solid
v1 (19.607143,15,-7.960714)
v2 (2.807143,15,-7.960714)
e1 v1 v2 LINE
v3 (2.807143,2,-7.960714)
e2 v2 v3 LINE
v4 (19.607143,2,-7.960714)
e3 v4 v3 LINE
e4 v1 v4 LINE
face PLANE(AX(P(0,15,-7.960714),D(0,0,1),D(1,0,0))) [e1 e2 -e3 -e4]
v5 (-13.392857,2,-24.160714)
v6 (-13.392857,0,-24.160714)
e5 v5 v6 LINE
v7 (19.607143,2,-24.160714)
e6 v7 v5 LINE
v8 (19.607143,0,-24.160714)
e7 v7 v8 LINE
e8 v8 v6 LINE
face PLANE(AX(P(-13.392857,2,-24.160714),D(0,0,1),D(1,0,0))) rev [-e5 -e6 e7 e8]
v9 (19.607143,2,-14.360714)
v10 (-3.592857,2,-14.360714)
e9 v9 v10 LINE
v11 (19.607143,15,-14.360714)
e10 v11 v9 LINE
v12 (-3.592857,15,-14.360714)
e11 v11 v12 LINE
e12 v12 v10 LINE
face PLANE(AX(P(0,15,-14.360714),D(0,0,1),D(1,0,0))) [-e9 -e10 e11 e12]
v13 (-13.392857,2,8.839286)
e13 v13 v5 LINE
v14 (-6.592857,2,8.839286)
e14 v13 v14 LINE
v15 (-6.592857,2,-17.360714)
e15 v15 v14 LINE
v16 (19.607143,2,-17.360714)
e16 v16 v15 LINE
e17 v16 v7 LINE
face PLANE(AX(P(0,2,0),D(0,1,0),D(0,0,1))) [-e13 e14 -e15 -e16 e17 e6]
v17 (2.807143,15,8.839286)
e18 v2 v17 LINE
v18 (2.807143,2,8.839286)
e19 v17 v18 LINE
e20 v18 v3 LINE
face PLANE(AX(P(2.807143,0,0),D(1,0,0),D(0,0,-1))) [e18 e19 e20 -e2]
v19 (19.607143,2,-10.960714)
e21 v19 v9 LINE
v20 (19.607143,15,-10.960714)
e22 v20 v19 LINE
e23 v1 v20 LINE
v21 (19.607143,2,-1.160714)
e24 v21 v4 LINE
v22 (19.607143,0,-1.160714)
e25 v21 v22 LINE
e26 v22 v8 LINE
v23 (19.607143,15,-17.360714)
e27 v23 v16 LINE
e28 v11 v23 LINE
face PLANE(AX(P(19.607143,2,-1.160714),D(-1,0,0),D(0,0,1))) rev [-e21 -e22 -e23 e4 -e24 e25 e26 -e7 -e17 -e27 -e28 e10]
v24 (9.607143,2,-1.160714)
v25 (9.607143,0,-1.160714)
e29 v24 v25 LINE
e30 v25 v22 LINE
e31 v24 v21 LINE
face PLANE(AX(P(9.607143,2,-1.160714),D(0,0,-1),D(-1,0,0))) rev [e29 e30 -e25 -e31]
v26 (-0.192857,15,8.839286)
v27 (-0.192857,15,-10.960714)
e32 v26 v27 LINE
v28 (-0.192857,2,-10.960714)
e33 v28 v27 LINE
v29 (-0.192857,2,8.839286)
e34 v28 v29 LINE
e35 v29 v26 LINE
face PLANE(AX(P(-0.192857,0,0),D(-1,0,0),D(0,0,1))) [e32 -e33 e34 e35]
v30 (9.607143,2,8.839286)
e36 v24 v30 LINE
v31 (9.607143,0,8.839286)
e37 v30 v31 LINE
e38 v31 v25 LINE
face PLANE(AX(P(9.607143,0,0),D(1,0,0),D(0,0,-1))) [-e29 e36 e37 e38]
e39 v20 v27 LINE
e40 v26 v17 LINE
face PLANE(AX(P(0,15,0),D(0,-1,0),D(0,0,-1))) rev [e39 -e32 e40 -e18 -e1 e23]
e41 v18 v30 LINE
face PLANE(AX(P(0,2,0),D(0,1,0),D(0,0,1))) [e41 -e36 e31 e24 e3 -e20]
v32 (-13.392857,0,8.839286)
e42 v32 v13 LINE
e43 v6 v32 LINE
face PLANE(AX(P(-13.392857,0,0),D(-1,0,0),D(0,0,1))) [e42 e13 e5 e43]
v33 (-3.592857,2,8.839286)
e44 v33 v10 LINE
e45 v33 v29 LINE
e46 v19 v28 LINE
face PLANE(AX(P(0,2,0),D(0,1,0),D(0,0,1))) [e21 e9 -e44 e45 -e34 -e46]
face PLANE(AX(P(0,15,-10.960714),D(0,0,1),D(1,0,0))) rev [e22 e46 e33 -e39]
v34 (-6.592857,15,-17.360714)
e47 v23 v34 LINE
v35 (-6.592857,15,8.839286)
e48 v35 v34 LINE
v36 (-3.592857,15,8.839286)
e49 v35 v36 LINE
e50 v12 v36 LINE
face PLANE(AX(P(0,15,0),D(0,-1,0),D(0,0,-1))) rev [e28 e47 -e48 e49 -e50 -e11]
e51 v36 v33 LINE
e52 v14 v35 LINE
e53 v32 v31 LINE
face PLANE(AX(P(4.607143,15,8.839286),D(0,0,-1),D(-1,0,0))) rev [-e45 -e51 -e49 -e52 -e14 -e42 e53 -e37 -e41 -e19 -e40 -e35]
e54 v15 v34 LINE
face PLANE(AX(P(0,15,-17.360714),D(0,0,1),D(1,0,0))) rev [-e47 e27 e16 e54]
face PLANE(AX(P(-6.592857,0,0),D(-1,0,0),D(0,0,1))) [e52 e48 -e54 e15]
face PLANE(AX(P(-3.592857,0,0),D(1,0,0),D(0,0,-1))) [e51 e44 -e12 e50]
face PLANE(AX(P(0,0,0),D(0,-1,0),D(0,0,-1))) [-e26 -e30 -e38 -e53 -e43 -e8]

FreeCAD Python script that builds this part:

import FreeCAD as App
import Part
import Sketcher

doc = App.newDocument("Part")
params = doc.addObject("Spreadsheet::Sheet", "Params")
for row, (alias, value) in enumerate([
    ("sketch1_width", "13 mm"),
    ("sketch1_height", "20 mm"),
    ("pad1_length", "15 mm"),
    ("sketch2_width", "2 mm"),
    ("sketch2_width2", "3 mm"),
    ("sketch2_height", "20 mm"),
    ("pocket1_length", "13 mm"),
    ("sketch3_width", "2 mm"),
    ("sketch3_height", "20 mm"),
    ("pad2_length", "5 mm"),
    ("sketch4_width", "2 mm"),
    ("sketch4_height", "20 mm"),
    ("pad3_length", "5 mm"),
    ("sketch5_width", "13 mm"),
    ("sketch5_height", "20 mm"),
    ("pocket2_length", "0.2 mm"),
    ("sketch6_width", "13 mm"),
    ("sketch6_height", "20 mm"),
    ("pocket3_length", "0.2 mm"),
    ("sketch7_width", "13 mm"),
    ("sketch7_height", "20 mm"),
    ("pad4_length", "0.2 mm"),
    ("sketch8_width", "13 mm"),
    ("sketch8_height", "20 mm"),
    ("pad5_length", "0.2 mm"),
    ("sketch9_width", "3 mm"),
    ("sketch9_width2", "23 mm"),
    ("sketch9_height", "13 mm"),
    ("sketch9_height2", "2 mm"),
    ("sketch9_width3", "3.4 mm"),
    ("pocket4_length", "10 mm"),
    ("sketch10_width", "33 mm"),
    ("sketch10_height", "23 mm"),
    ("pad6_length", "2 mm"),
    ("sketch11_width", "3 mm"),
    ("sketch11_height", "23 mm"),
    ("pad7_length", "13 mm"),
    ("sketch12_width", "33 mm"),
    ("sketch12_height", "3 mm"),
    ("pad8_length", "13 mm"),
    ("sketch13_height", "13 mm"),
    ("sketch13_width", "3.4 mm"),
    ("pocket5_length", "10 mm"),
    ("sketch14_height", "13 mm"),
    ("sketch14_width", "6.8 mm"),
    ("pocket6_length", "10 mm"),
    ("sketch15_width", "13 mm"),
    ("sketch15_height", "6.8 mm"),
    ("pocket7_length", "10 mm"),
    ("sketch16_width", "13 mm"),
    ("sketch16_height", "3.4 mm"),
    ("pocket8_length", "5 mm"),
], start=1):
    params.set(f"A{row}", alias)
    params.set(f"B{row}", "=" + value)
    params.setAlias(f"B{row}", alias)

body = doc.addObject("PartDesign::Body", "Body")

sketch1 = doc.addObject("Sketcher::SketchObject", "Sketch")
body.addObject(sketch1)
sketch1.AttachmentSupport = (doc.XZ_Plane, [""])
sketch1.MapMode = "FlatFace"
sketch1.addGeometry([
    Part.LineSegment(App.Vector(-8, -11, 0), App.Vector(-8, 9, 0)),
    Part.LineSegment(App.Vector(-8, 9, 0), App.Vector(5, 9, 0)),
    Part.LineSegment(App.Vector(5, 9, 0), App.Vector(5, -11, 0)),
    Part.LineSegment(App.Vector(5, -11, 0), App.Vector(-8, -11, 0)),
], False)
sketch1.addConstraint([
    Sketcher.Constraint("Coincident", 0, 2, 1, 1),
    Sketcher.Constraint("Coincident", 1, 2, 2, 1),
    Sketcher.Constraint("Coincident", 2, 2, 3, 1),
    Sketcher.Constraint("Coincident", 3, 2, 0, 1),
    Sketcher.Constraint("Vertical", 0),
    Sketcher.Constraint("Horizontal", 1),
    Sketcher.Constraint("Vertical", 2),
    Sketcher.Constraint("Horizontal", 3),
    Sketcher.Constraint("DistanceX", 1, 1, 1, 2, 13.0),
    Sketcher.Constraint("DistanceY", 0, 1, 0, 2, 20.0),
    Sketcher.Constraint("DistanceX", 0, 2, -1, 1, 8.392857),
    Sketcher.Constraint("DistanceY", -1, 1, 0, 2, 8.839286),
])
sketch1.setExpression("Constraints[8]", "Params.sketch1_width")
sketch1.setExpression("Constraints[9]", "Params.sketch1_height")
pad1 = doc.addObject("PartDesign::Pad", "Pad")
body.addObject(pad1)
pad1.Profile = sketch1
pad1.setExpression("Length", "Params.pad1_length")
pad1.Reversed = True

sketch2 = doc.addObject("Sketcher::SketchObject", "Sketch001")
body.addObject(sketch2)
sketch2.AttachmentSupport = (doc.XZ_Plane, [""])
sketch2.MapMode = "FlatFace"
sketch2.AttachmentOffset = App.Placement(App.Vector(0, 0, -15), App.Rotation())
sketch2.addGeometry([
    Part.LineSegment(App.Vector(-8.4, -11.2, 0), App.Vector(-8.4, 8.8, 0)),
    Part.LineSegment(App.Vector(-8.4, 8.8, 0), App.Vector(-6.4, 8.8, 0)),
    Part.LineSegment(App.Vector(-6.4, 8.8, 0), App.Vector(-6.4, -11.2, 0)),
    Part.LineSegment(App.Vector(-6.4, -11.2, 0), App.Vector(-8.4, -11.2, 0)),
    Part.LineSegment(App.Vector(-3.4, -11.2, 0), App.Vector(-3.4, 8.8, 0)),
    Part.LineSegment(App.Vector(-3.4, 8.8, 0), App.Vector(-0.4, 8.8, 0)),
    Part.LineSegment(App.Vector(-0.4, 8.8, 0), App.Vector(-0.4, -11.2, 0)),
    Part.LineSegment(App.Vector(-0.4, -11.2, 0), App.Vector(-3.4, -11.2, 0)),
    Part.LineSegment(App.Vector(2.6, -11.2, 0), App.Vector(2.6, 8.8, 0)),
    Part.LineSegment(App.Vector(2.6, 8.8, 0), App.Vector(4.6, 8.8, 0)),
    Part.LineSegment(App.Vector(4.6, 8.8, 0), App.Vector(4.6, -11.2, 0)),
    Part.LineSegment(App.Vector(4.6, -11.2, 0), App.Vector(2.6, -11.2, 0)),
], False)
sketch2.addConstraint([
    Sketcher.Constraint("Coincident", 0, 2, 1, 1),
    Sketcher.Constraint("Coincident", 1, 2, 2, 1),
    Sketcher.Constraint("Coincident", 2, 2, 3, 1),
    Sketcher.Constraint("Coincident", 3, 2, 0, 1),
    Sketcher.Constraint("Coincident", 4, 2, 5, 1),
    Sketcher.Constraint("Coincident", 5, 2, 6, 1),
    Sketcher.Constraint("Coincident", 6, 2, 7, 1),
    Sketcher.Constraint("Coincident", 7, 2, 4, 1),
    Sketcher.Constraint("Coincident", 8, 2, 9, 1),
    Sketcher.Constraint("Coincident", 9, 2, 10, 1),
    Sketcher.Constraint("Coincident", 10, 2, 11, 1),
    Sketcher.Constraint("Coincident", 11, 2, 8, 1),
    Sketcher.Constraint("Vertical", 0),
    Sketcher.Constraint("Horizontal", 1),
    Sketcher.Constraint("Vertical", 2),
    Sketcher.Constraint("Horizontal", 3),
    Sketcher.Constraint("Vertical", 4),
    Sketcher.Constraint("Horizontal", 5),
    Sketcher.Constraint("Vertical", 6),
    Sketcher.Constraint("Horizontal", 7),
    Sketcher.Constraint("Vertical", 8),
    Sketcher.Constraint("Horizontal", 9),
    Sketcher.Constraint("Vertical", 10),
    Sketcher.Constraint("Horizontal", 11),
    Sketcher.Constraint("Horizontal", 1, 2, 4, 2),
    Sketcher.Constraint("Horizontal", 3, 2, 6, 2),
    Sketcher.Constraint("Horizontal", 5, 2, 8, 2),
    Sketcher.Constraint("Horizontal", 7, 2, 10, 2),
    Sketcher.Constraint("Equal", 3, 9),
    Sketcher.Constraint("DistanceX", 1, 1, 1, 2, 2.0),
    Sketcher.Constraint("DistanceX", 5, 1, 5, 2, 3.0),
    Sketcher.Constraint("DistanceY", 0, 1, 0, 2, 20.0),
    Sketcher.Constraint("DistanceX", 1, 2, 4, 2, 3.0),
    Sketcher.Constraint("DistanceX", 5, 2, 8, 2, 3.0),
    Sketcher.Constraint("DistanceX", 0, 2, -1, 1, 8.392857),
    Sketcher.Constraint("DistanceY", -1, 1, 0, 2, 8.839286),
])
sketch2.setExpression("Constraints[29]", "Params.sketch2_width")
sketch2.setExpression("Constraints[30]", "Params.sketch2_width2")
sketch2.setExpression("Constraints[31]", "Params.sketch2_height")
pocket1 = doc.addObject("PartDesign::Pocket", "Pocket")
body.addObject(pocket1)
pocket1.Profile = sketch2
pocket1.setExpression("Length", "Params.pocket1_length")
pocket1.Reversed = True

sketch3 = doc.addObject("Sketcher::SketchObject", "Sketch002")
body.addObject(sketch3)
sketch3.AttachmentSupport = (doc.YZ_Plane, [""])
sketch3.MapMode = "FlatFace"
sketch3.AttachmentOffset = App.Placement(App.Vector(0, 0, -8.392857), App.Rotation())
sketch3.addGeometry([
    Part.LineSegment(App.Vector(2, -11.2, 0), App.Vector(0, -11.2, 0)),
    Part.LineSegment(App.Vector(0, -11.2, 0), App.Vector(0, 8.8, 0)),
    Part.LineSegment(App.Vector(0, 8.8, 0), App.Vector(2, 8.8, 0)),
    Part.LineSegment(App.Vector(2, 8.8, 0), App.Vector(2, -11.2, 0)),
], False)
sketch3.addConstraint([
    Sketcher.Constraint("Coincident", 0, 2, 1, 1),
    Sketcher.Constraint("Coincident", 1, 2, 2, 1),
    Sketcher.Constraint("Coincident", 2, 2, 3, 1),
    Sketcher.Constraint("Coincident", 3, 2, 0, 1),
    Sketcher.Constraint("Horizontal", 0),
    Sketcher.Constraint("Vertical", 1),
    Sketcher.Constraint("Horizontal", 2),
    Sketcher.Constraint("Vertical", 3),
    Sketcher.Constraint("PointOnObject", 0, 2, -2),
    Sketcher.Constraint("DistanceX", 0, 2, 0, 1, 2.0),
    Sketcher.Constraint("DistanceY", 1, 1, 1, 2, 20.0),
    Sketcher.Constraint("DistanceY", 0, 2, -1, 1, 11.160714),
])
sketch3.setExpression("Constraints[9]", "Params.sketch3_width")
sketch3.setExpression("Constraints[10]", "Params.sketch3_height")
pad2 = doc.addObject("PartDesign::Pad", "Pad001")
body.addObject(pad2)
pad2.Profile = sketch3
pad2.setExpression("Length", "Params.pad2_length")
pad2.Reversed = True

sketch4 = doc.addObject("Sketcher::SketchObject", "Sketch003")
body.addObject(sketch4)
sketch4.AttachmentSupport = (doc.YZ_Plane, [""])
sketch4.MapMode = "FlatFace"
sketch4.AttachmentOffset = App.Placement(App.Vector(0, 0, 4.607143), App.Rotation())
sketch4.addGeometry([
    Part.LineSegment(App.Vector(2, 8.8, 0), App.Vector(0, 8.8, 0)),
    Part.LineSegment(App.Vector(0, 8.8, 0), App.Vector(0, -11.2, 0)),
    Part.LineSegment(App.Vector(0, -11.2, 0), App.Vector(2, -11.2, 0)),
    Part.LineSegment(App.Vector(2, -11.2, 0), App.Vector(2, 8.8, 0)),
], False)
sketch4.addConstraint([
    Sketcher.Constraint("Coincident", 0, 2, 1, 1),
    Sketcher.Constraint("Coincident", 1, 2, 2, 1),
    Sketcher.Constraint("Coincident", 2, 2, 3, 1),
    Sketcher.Constraint("Coincident", 3, 2, 0, 1),
    Sketcher.Constraint("Horizontal", 0),
    Sketcher.Constraint("Vertical", 1),
    Sketcher.Constraint("Horizontal", 2),
    Sketcher.Constraint("Vertical", 3),
    Sketcher.Constraint("PointOnObject", 0, 2, -2),
    Sketcher.Constraint("DistanceX", 0, 2, 0, 1, 2.0),
    Sketcher.Constraint("DistanceY", 1, 2, 1, 1, 20.0),
    Sketcher.Constraint("DistanceY", -1, 1, 0, 2, 8.839286),
])
sketch4.setExpression("Constraints[9]", "Params.sketch4_width")
sketch4.setExpression("Constraints[10]", "Params.sketch4_height")
pad3 = doc.addObject("PartDesign::Pad", "Pad002")
body.addObject(pad3)
pad3.Profile = sketch4
pad3.setExpression("Length", "Params.pad3_length")

sketch5 = doc.addObject("Sketcher::SketchObject", "Sketch004")
body.addObject(sketch5)
sketch5.AttachmentSupport = (doc.YZ_Plane, [""])
sketch5.MapMode = "FlatFace"
sketch5.AttachmentOffset = App.Placement(App.Vector(0, 0, -0.392857), App.Rotation())
sketch5.addGeometry([
    Part.LineSegment(App.Vector(15, -11, 0), App.Vector(2, -11, 0)),
    Part.LineSegment(App.Vector(2, -11, 0), App.Vector(2, 9, 0)),
    Part.LineSegment(App.Vector(2, 9, 0), App.Vector(15, 9, 0)),
    Part.LineSegment(App.Vector(15, 9, 0), App.Vector(15, -11, 0)),
], False)
sketch5.addConstraint([
    Sketcher.Constraint("Coincident", 0, 2, 1, 1),
    Sketcher.Constraint("Coincident", 1, 2, 2, 1),
    Sketcher.Constraint("Coincident", 2, 2, 3, 1),
    Sketcher.Constraint("Coincident", 3, 2, 0, 1),
    Sketcher.Constraint("Horizontal", 0),
    Sketcher.Constraint("Vertical", 1),
    Sketcher.Constraint("Horizontal", 2),
    Sketcher.Constraint("Vertical", 3),
    Sketcher.Constraint("DistanceX", 0, 2, 0, 1, 13.0),
    Sketcher.Constraint("DistanceY", 1, 1, 1, 2, 20.0),
    Sketcher.Constraint("DistanceX", -1, 1, 0, 2, 2.0),
    Sketcher.Constraint("DistanceY", 0, 2, -1, 1, 11.160714),
])
sketch5.setExpression("Constraints[8]", "Params.sketch5_width")
sketch5.setExpression("Constraints[9]", "Params.sketch5_height")
pocket2 = doc.addObject("PartDesign::Pocket", "Pocket001")
body.addObject(pocket2)
pocket2.Profile = sketch5
pocket2.setExpression("Length", "Params.pocket2_length")
pocket2.Reversed = True

sketch6 = doc.addObject("Sketcher::SketchObject", "Sketch005")
body.addObject(sketch6)
sketch6.AttachmentSupport = (doc.YZ_Plane, [""])
sketch6.MapMode = "FlatFace"
sketch6.AttachmentOffset = App.Placement(App.Vector(0, 0, -3.392857), App.Rotation())
sketch6.addGeometry([
    Part.LineSegment(App.Vector(15, 9, 0), App.Vector(2, 9, 0)),
    Part.LineSegment(App.Vector(2, 9, 0), App.Vector(2, -11, 0)),
    Part.LineSegment(App.Vector(2, -11, 0), App.Vector(15, -11, 0)),
    Part.LineSegment(App.Vector(15, -11, 0), App.Vector(15, 9, 0)),
], False)
sketch6.addConstraint([
    Sketcher.Constraint("Coincident", 0, 2, 1, 1),
    Sketcher.Constraint("Coincident", 1, 2, 2, 1),
    Sketcher.Constraint("Coincident", 2, 2, 3, 1),
    Sketcher.Constraint("Coincident", 3, 2, 0, 1),
    Sketcher.Constraint("Horizontal", 0),
    Sketcher.Constraint("Vertical", 1),
    Sketcher.Constraint("Horizontal", 2),
    Sketcher.Constraint("Vertical", 3),
    Sketcher.Constraint("DistanceX", 0, 2, 0, 1, 13.0),
    Sketcher.Constraint("DistanceY", 1, 2, 1, 1, 20.0),
    Sketcher.Constraint("DistanceX", -1, 1, 0, 2, 2.0),
    Sketcher.Constraint("DistanceY", -1, 1, 0, 2, 8.839286),
])
sketch6.setExpression("Constraints[8]", "Params.sketch6_width")
sketch6.setExpression("Constraints[9]", "Params.sketch6_height")
pocket3 = doc.addObject("PartDesign::Pocket", "Pocket002")
body.addObject(pocket3)
pocket3.Profile = sketch6
pocket3.setExpression("Length", "Params.pocket3_length")

sketch7 = doc.addObject("Sketcher::SketchObject", "Sketch006")
body.addObject(sketch7)
sketch7.AttachmentSupport = (doc.YZ_Plane, [""])
sketch7.MapMode = "FlatFace"
sketch7.AttachmentOffset = App.Placement(App.Vector(0, 0, 2.607143), App.Rotation())
sketch7.addGeometry([
    Part.LineSegment(App.Vector(15, 9, 0), App.Vector(2, 9, 0)),
    Part.LineSegment(App.Vector(2, 9, 0), App.Vector(2, -11, 0)),
    Part.LineSegment(App.Vector(2, -11, 0), App.Vector(15, -11, 0)),
    Part.LineSegment(App.Vector(15, -11, 0), App.Vector(15, 9, 0)),
], False)
sketch7.addConstraint([
    Sketcher.Constraint("Coincident", 0, 2, 1, 1),
    Sketcher.Constraint("Coincident", 1, 2, 2, 1),
    Sketcher.Constraint("Coincident", 2, 2, 3, 1),
    Sketcher.Constraint("Coincident", 3, 2, 0, 1),
    Sketcher.Constraint("Horizontal", 0),
    Sketcher.Constraint("Vertical", 1),
    Sketcher.Constraint("Horizontal", 2),
    Sketcher.Constraint("Vertical", 3),
    Sketcher.Constraint("DistanceX", 0, 2, 0, 1, 13.0),
    Sketcher.Constraint("DistanceY", 1, 2, 1, 1, 20.0),
    Sketcher.Constraint("DistanceX", -1, 1, 0, 2, 2.0),
    Sketcher.Constraint("DistanceY", -1, 1, 0, 2, 8.839286),
])
sketch7.setExpression("Constraints[8]", "Params.sketch7_width")
sketch7.setExpression("Constraints[9]", "Params.sketch7_height")
pad4 = doc.addObject("PartDesign::Pad", "Pad003")
body.addObject(pad4)
pad4.Profile = sketch7
pad4.setExpression("Length", "Params.pad4_length")

sketch8 = doc.addObject("Sketcher::SketchObject", "Sketch007")
body.addObject(sketch8)
sketch8.AttachmentSupport = (doc.YZ_Plane, [""])
sketch8.MapMode = "FlatFace"
sketch8.AttachmentOffset = App.Placement(App.Vector(0, 0, -6.392857), App.Rotation())
sketch8.addGeometry([
    Part.LineSegment(App.Vector(15, -11, 0), App.Vector(2, -11, 0)),
    Part.LineSegment(App.Vector(2, -11, 0), App.Vector(2, 9, 0)),
    Part.LineSegment(App.Vector(2, 9, 0), App.Vector(15, 9, 0)),
    Part.LineSegment(App.Vector(15, 9, 0), App.Vector(15, -11, 0)),
], False)
sketch8.addConstraint([
    Sketcher.Constraint("Coincident", 0, 2, 1, 1),
    Sketcher.Constraint("Coincident", 1, 2, 2, 1),
    Sketcher.Constraint("Coincident", 2, 2, 3, 1),
    Sketcher.Constraint("Coincident", 3, 2, 0, 1),
    Sketcher.Constraint("Horizontal", 0),
    Sketcher.Constraint("Vertical", 1),
    Sketcher.Constraint("Horizontal", 2),
    Sketcher.Constraint("Vertical", 3),
    Sketcher.Constraint("DistanceX", 0, 2, 0, 1, 13.0),
    Sketcher.Constraint("DistanceY", 1, 1, 1, 2, 20.0),
    Sketcher.Constraint("DistanceX", -1, 1, 0, 2, 2.0),
    Sketcher.Constraint("DistanceY", 0, 2, -1, 1, 11.160714),
])
sketch8.setExpression("Constraints[8]", "Params.sketch8_width")
sketch8.setExpression("Constraints[9]", "Params.sketch8_height")
pad5 = doc.addObject("PartDesign::Pad", "Pad004")
body.addObject(pad5)
pad5.Profile = sketch8
pad5.setExpression("Length", "Params.pad5_length")
pad5.Reversed = True

sketch9 = doc.addObject("Sketcher::SketchObject", "Sketch008")
body.addObject(sketch9)
sketch9.AttachmentSupport = (doc.XY_Plane, [""])
sketch9.MapMode = "FlatFace"
sketch9.AttachmentOffset = App.Placement(App.Vector(0, 0, -11.160714), App.Rotation())
sketch9.addGeometry([
    Part.LineSegment(App.Vector(-6.6, 2, 0), App.Vector(-6.6, 15, 0)),
    Part.LineSegment(App.Vector(-6.6, 15, 0), App.Vector(-3.6, 15, 0)),
    Part.LineSegment(App.Vector(-3.6, 15, 0), App.Vector(-3.6, 2, 0)),
    Part.LineSegment(App.Vector(-3.6, 2, 0), App.Vector(-0.2, 2, 0)),
    Part.LineSegment(App.Vector(-0.2, 2, 0), App.Vector(-0.2, 15, 0)),
    Part.LineSegment(App.Vector(-0.2, 15, 0), App.Vector(2.8, 15, 0)),
    Part.LineSegment(App.Vector(2.8, 15, 0), App.Vector(2.8, 2, 0)),
    Part.LineSegment(App.Vector(2.8, 2, 0), App.Vector(9.6, 2, 0)),
    Part.LineSegment(App.Vector(9.6, 2, 0), App.Vector(9.6, 0, 0)),
    Part.LineSegment(App.Vector(9.6, 0, 0), App.Vector(-13.4, 0, 0)),
    Part.LineSegment(App.Vector(-13.4, 0, 0), App.Vector(-13.4, 2, 0)),
    Part.LineSegment(App.Vector(-13.4, 2, 0), App.Vector(-6.6, 2, 0)),
], False)
sketch9.addConstraint([
    Sketcher.Constraint("Coincident", 0, 2, 1, 1),
    Sketcher.Constraint("Coincident", 1, 2, 2, 1),
    Sketcher.Constraint("Coincident", 2, 2, 3, 1),
    Sketcher.Constraint("Coincident", 3, 2, 4, 1),
    Sketcher.Constraint("Coincident", 4, 2, 5, 1),
    Sketcher.Constraint("Coincident", 5, 2, 6, 1),
    Sketcher.Constraint("Coincident", 6, 2, 7, 1),
    Sketcher.Constraint("Coincident", 7, 2, 8, 1),
    Sketcher.Constraint("Coincident", 8, 2, 9, 1),
    Sketcher.Constraint("Coincident", 9, 2, 10, 1),
    Sketcher.Constraint("Coincident", 10, 2, 11, 1),
    Sketcher.Constraint("Coincident", 11, 2, 0, 1),
    Sketcher.Constraint("Vertical", 0),
    Sketcher.Constraint("Horizontal", 1),
    Sketcher.Constraint("Vertical", 2),
    Sketcher.Constraint("Horizontal", 3),
    Sketcher.Constraint("Vertical", 4),
    Sketcher.Constraint("Horizontal", 5),
    Sketcher.Constraint("Vertical", 6),
    Sketcher.Constraint("Horizontal", 7),
    Sketcher.Constraint("Vertical", 8),
    Sketcher.Constraint("Horizontal", 9),
    Sketcher.Constraint("Vertical", 10),
    Sketcher.Constraint("Horizontal", 11),
    Sketcher.Constraint("PointOnObject", 8, 2, -1),
    Sketcher.Constraint("Horizontal", 1, 2, 4, 2),
    Sketcher.Constraint("Horizontal", 3, 2, 6, 2),
    Sketcher.Constraint("Horizontal", 7, 2, 10, 2),
    Sketcher.Constraint("Equal", 1, 5),
    Sketcher.Constraint("Equal", 7, 11),
    Sketcher.Constraint("DistanceX", 1, 1, 1, 2, 3.0),
    Sketcher.Constraint("DistanceX", 9, 2, 9, 1, 23.0),
    Sketcher.Constraint("DistanceY", 0, 1, 0, 2, 13.0),
    Sketcher.Constraint("DistanceY", 8, 2, 8, 1, 2.0),
    Sketcher.Constraint("DistanceX", 3, 1, 3, 2, 3.4),
    Sketcher.Constraint("DistanceX", 0, 2, -1, 1, 6.592857),
])
sketch9.setExpression("Constraints[30]", "Params.sketch9_width")
sketch9.setExpression("Constraints[31]", "Params.sketch9_width2")
sketch9.setExpression("Constraints[32]", "Params.sketch9_height")
sketch9.setExpression("Constraints[33]", "Params.sketch9_height2")
sketch9.setExpression("Constraints[34]", "Params.sketch9_width3")
pocket4 = doc.addObject("PartDesign::Pocket", "Pocket003")
body.addObject(pocket4)
pocket4.Profile = sketch9
pocket4.setExpression("Length", "Params.pocket4_length")
pocket4.Reversed = True

sketch10 = doc.addObject("Sketcher::SketchObject", "Sketch009")
body.addObject(sketch10)
sketch10.AttachmentSupport = (doc.XZ_Plane, [""])
sketch10.MapMode = "FlatFace"
sketch10.addGeometry([
    Part.LineSegment(App.Vector(20, -1, 0), App.Vector(20, -24, 0)),
    Part.LineSegment(App.Vector(20, -24, 0), App.Vector(-13, -24, 0)),
    Part.LineSegment(App.Vector(-13, -24, 0), App.Vector(-13, -1, 0)),
    Part.LineSegment(App.Vector(-13, -1, 0), App.Vector(20, -1, 0)),
], False)
sketch10.addConstraint([
    Sketcher.Constraint("Coincident", 0, 2, 1, 1),
    Sketcher.Constraint("Coincident", 1, 2, 2, 1),
    Sketcher.Constraint("Coincident", 2, 2, 3, 1),
    Sketcher.Constraint("Coincident", 3, 2, 0, 1),
    Sketcher.Constraint("Vertical", 0),
    Sketcher.Constraint("Horizontal", 1),
    Sketcher.Constraint("Vertical", 2),
    Sketcher.Constraint("Horizontal", 3),
    Sketcher.Constraint("DistanceX", 1, 2, 1, 1, 33.0),
    Sketcher.Constraint("DistanceY", 0, 2, 0, 1, 23.0),
    Sketcher.Constraint("DistanceX", -1, 1, 0, 2, 19.607143),
    Sketcher.Constraint("DistanceY", 0, 2, -1, 1, 24.160714),
])
sketch10.setExpression("Constraints[8]", "Params.sketch10_width")
sketch10.setExpression("Constraints[9]", "Params.sketch10_height")
pad6 = doc.addObject("PartDesign::Pad", "Pad005")
body.addObject(pad6)
pad6.Profile = sketch10
pad6.setExpression("Length", "Params.pad6_length")
pad6.Reversed = True

sketch11 = doc.addObject("Sketcher::SketchObject", "Sketch010")
body.addObject(sketch11)
sketch11.AttachmentSupport = (doc.XZ_Plane, [""])
sketch11.MapMode = "FlatFace"
sketch11.AttachmentOffset = App.Placement(App.Vector(0, 0, -2), App.Rotation())
sketch11.addGeometry([
    Part.LineSegment(App.Vector(-0.2, -1.2, 0), App.Vector(2.8, -1.2, 0)),
    Part.LineSegment(App.Vector(2.8, -1.2, 0), App.Vector(2.8, -24.2, 0)),
    Part.LineSegment(App.Vector(2.8, -24.2, 0), App.Vector(-0.2, -24.2, 0)),
    Part.LineSegment(App.Vector(-0.2, -24.2, 0), App.Vector(-0.2, -1.2, 0)),
    Part.LineSegment(App.Vector(-6.6, -24.2, 0), App.Vector(-6.6, -1.2, 0)),
    Part.LineSegment(App.Vector(-6.6, -1.2, 0), App.Vector(-3.6, -1.2, 0)),
    Part.LineSegment(App.Vector(-3.6, -1.2, 0), App.Vector(-3.6, -24.2, 0)),
    Part.LineSegment(App.Vector(-3.6, -24.2, 0), App.Vector(-6.6, -24.2, 0)),
], False)
sketch11.addConstraint([
    Sketcher.Constraint("Coincident", 0, 2, 1, 1),
    Sketcher.Constraint("Coincident", 1, 2, 2, 1),
    Sketcher.Constraint("Coincident", 2, 2, 3, 1),
    Sketcher.Constraint("Coincident", 3, 2, 0, 1),
    Sketcher.Constraint("Coincident", 4, 2, 5, 1),
    Sketcher.Constraint("Coincident", 5, 2, 6, 1),
    Sketcher.Constraint("Coincident", 6, 2, 7, 1),
    Sketcher.Constraint("Coincident", 7, 2, 4, 1),
    Sketcher.Constraint("Horizontal", 0),
    Sketcher.Constraint("Vertical", 1),
    Sketcher.Constraint("Horizontal", 2),
    Sketcher.Constraint("Vertical", 3),
    Sketcher.Constraint("Vertical", 4),
    Sketcher.Constraint("Horizontal", 5),
    Sketcher.Constraint("Vertical", 6),
    Sketcher.Constraint("Horizontal", 7),
    Sketcher.Constraint("Horizontal", 3, 2, 4, 2),
    Sketcher.Constraint("Horizontal", 2, 2, 6, 2),
    Sketcher.Constraint("Equal", 2, 5),
    Sketcher.Constraint("DistanceX", 0, 1, 0, 2, 3.0),
    Sketcher.Constraint("DistanceY", 1, 2, 1, 1, 23.0),
    Sketcher.Constraint("DistanceX", 4, 2, 3, 2, 6.4),
    Sketcher.Constraint("DistanceX", -1, 1, 0, 2, 2.807143),
    Sketcher.Constraint("DistanceY", 0, 2, -1, 1, 1.160714),
])
sketch11.setExpression("Constraints[19]", "Params.sketch11_width")
sketch11.setExpression("Constraints[20]", "Params.sketch11_height")
pad7 = doc.addObject("PartDesign::Pad", "Pad006")
body.addObject(pad7)
pad7.Profile = sketch11
pad7.setExpression("Length", "Params.pad7_length")
pad7.Reversed = True

sketch12 = doc.addObject("Sketcher::SketchObject", "Sketch011")
body.addObject(sketch12)
sketch12.AttachmentSupport = (doc.XZ_Plane, [""])
sketch12.MapMode = "FlatFace"
sketch12.AttachmentOffset = App.Placement(App.Vector(0, 0, -2), App.Rotation())
sketch12.addGeometry([
    Part.LineSegment(App.Vector(19.6, -8, 0), App.Vector(19.6, -11, 0)),
    Part.LineSegment(App.Vector(19.6, -11, 0), App.Vector(-13.4, -11, 0)),
    Part.LineSegment(App.Vector(-13.4, -11, 0), App.Vector(-13.4, -8, 0)),
    Part.LineSegment(App.Vector(-13.4, -8, 0), App.Vector(19.6, -8, 0)),
    Part.LineSegment(App.Vector(19.6, -14.4, 0), App.Vector(19.6, -17.4, 0)),
    Part.LineSegment(App.Vector(19.6, -17.4, 0), App.Vector(-13.4, -17.4, 0)),
    Part.LineSegment(App.Vector(-13.4, -17.4, 0), App.Vector(-13.4, -14.4, 0)),
    Part.LineSegment(App.Vector(-13.4, -14.4, 0), App.Vector(19.6, -14.4, 0)),
], False)
sketch12.addConstraint([
    Sketcher.Constraint("Coincident", 0, 2, 1, 1),
    Sketcher.Constraint("Coincident", 1, 2, 2, 1),
    Sketcher.Constraint("Coincident", 2, 2, 3, 1),
    Sketcher.Constraint("Coincident", 3, 2, 0, 1),
    Sketcher.Constraint("Coincident", 4, 2, 5, 1),
    Sketcher.Constraint("Coincident", 5, 2, 6, 1),
    Sketcher.Constraint("Coincident", 6, 2, 7, 1),
    Sketcher.Constraint("Coincident", 7, 2, 4, 1),
    Sketcher.Constraint("Vertical", 0),
    Sketcher.Constraint("Horizontal", 1),
    Sketcher.Constraint("Vertical", 2),
    Sketcher.Constraint("Horizontal", 3),
    Sketcher.Constraint("Vertical", 4),
    Sketcher.Constraint("Horizontal", 5),
    Sketcher.Constraint("Vertical", 6),
    Sketcher.Constraint("Horizontal", 7),
    Sketcher.Constraint("Vertical", 3, 2, 4, 2),
    Sketcher.Constraint("Vertical", 2, 2, 5, 2),
    Sketcher.Constraint("Equal", 2, 4),
    Sketcher.Constraint("DistanceX", 1, 2, 1, 1, 33.0),
    Sketcher.Constraint("DistanceY", 0, 2, 0, 1, 3.0),
    Sketcher.Constraint("DistanceY", 4, 2, 0, 2, 6.4),
    Sketcher.Constraint("DistanceX", -1, 1, 0, 2, 19.607143),
    Sketcher.Constraint("DistanceY", 0, 2, -1, 1, 10.960714),
])
sketch12.setExpression("Constraints[19]", "Params.sketch12_width")
sketch12.setExpression("Constraints[20]", "Params.sketch12_height")
pad8 = doc.addObject("PartDesign::Pad", "Pad007")
body.addObject(pad8)
pad8.Profile = sketch12
pad8.setExpression("Length", "Params.pad8_length")
pad8.Reversed = True

sketch13 = doc.addObject("Sketcher::SketchObject", "Sketch012")
body.addObject(sketch13)
sketch13.AttachmentSupport = (doc.XY_Plane, [""])
sketch13.MapMode = "FlatFace"
sketch13.AttachmentOffset = App.Placement(App.Vector(0, 0, -10.960714), App.Rotation())
sketch13.addGeometry([
    Part.LineSegment(App.Vector(-0.2, 15, 0), App.Vector(-0.2, 2, 0)),
    Part.LineSegment(App.Vector(-0.2, 2, 0), App.Vector(-3.6, 2, 0)),
    Part.LineSegment(App.Vector(-3.6, 2, 0), App.Vector(-3.6, 15, 0)),
    Part.LineSegment(App.Vector(-3.6, 15, 0), App.Vector(-0.2, 15, 0)),
], False)
sketch13.addConstraint([
    Sketcher.Constraint("Coincident", 0, 2, 1, 1),
    Sketcher.Constraint("Coincident", 1, 2, 2, 1),
    Sketcher.Constraint("Coincident", 2, 2, 3, 1),
    Sketcher.Constraint("Coincident", 3, 2, 0, 1),
    Sketcher.Constraint("Vertical", 0),
    Sketcher.Constraint("Horizontal", 1),
    Sketcher.Constraint("Vertical", 2),
    Sketcher.Constraint("Horizontal", 3),
    Sketcher.Constraint("DistanceY", 0, 2, 0, 1, 13.0),
    Sketcher.Constraint("DistanceX", 1, 2, 1, 1, 3.4),
    Sketcher.Constraint("DistanceY", -1, 1, 0, 2, 2.0),
    Sketcher.Constraint("DistanceX", 0, 2, -1, 1, 0.192857),
])
sketch13.setExpression("Constraints[8]", "Params.sketch13_height")
sketch13.setExpression("Constraints[9]", "Params.sketch13_width")
pocket5 = doc.addObject("PartDesign::Pocket", "Pocket004")
body.addObject(pocket5)
pocket5.Profile = sketch13
pocket5.setExpression("Length", "Params.pocket5_length")
pocket5.Reversed = True

sketch14 = doc.addObject("Sketcher::SketchObject", "Sketch013")
body.addObject(sketch14)
sketch14.AttachmentSupport = (doc.XY_Plane, [""])
sketch14.MapMode = "FlatFace"
sketch14.AttachmentOffset = App.Placement(App.Vector(0, 0, -17.360714), App.Rotation())
sketch14.addGeometry([
    Part.LineSegment(App.Vector(-7, 15, 0), App.Vector(-7, 2, 0)),
    Part.LineSegment(App.Vector(-7, 2, 0), App.Vector(-13, 2, 0)),
    Part.LineSegment(App.Vector(-13, 2, 0), App.Vector(-13, 15, 0)),
    Part.LineSegment(App.Vector(-13, 15, 0), App.Vector(-7, 15, 0)),
], False)
sketch14.addConstraint([
    Sketcher.Constraint("Coincident", 0, 2, 1, 1),
    Sketcher.Constraint("Coincident", 1, 2, 2, 1),
    Sketcher.Constraint("Coincident", 2, 2, 3, 1),
    Sketcher.Constraint("Coincident", 3, 2, 0, 1),
    Sketcher.Constraint("Vertical", 0),
    Sketcher.Constraint("Horizontal", 1),
    Sketcher.Constraint("Vertical", 2),
    Sketcher.Constraint("Horizontal", 3),
    Sketcher.Constraint("DistanceY", 0, 2, 0, 1, 13.0),
    Sketcher.Constraint("DistanceX", 1, 2, 1, 1, 6.8),
    Sketcher.Constraint("DistanceY", -1, 1, 0, 2, 2.0),
    Sketcher.Constraint("DistanceX", 0, 2, -1, 1, 6.592857),
])
sketch14.setExpression("Constraints[8]", "Params.sketch14_height")
sketch14.setExpression("Constraints[9]", "Params.sketch14_width")
pocket6 = doc.addObject("PartDesign::Pocket", "Pocket005")
body.addObject(pocket6)
pocket6.Profile = sketch14
pocket6.setExpression("Length", "Params.pocket6_length")
pocket6.Reversed = True

sketch15 = doc.addObject("Sketcher::SketchObject", "Sketch014")
body.addObject(sketch15)
sketch15.AttachmentSupport = (doc.YZ_Plane, [""])
sketch15.MapMode = "FlatFace"
sketch15.AttachmentOffset = App.Placement(App.Vector(0, 0, 2.807143), App.Rotation())
sketch15.addGeometry([
    Part.LineSegment(App.Vector(15, -17, 0), App.Vector(2, -17, 0)),
    Part.LineSegment(App.Vector(2, -17, 0), App.Vector(2, -24, 0)),
    Part.LineSegment(App.Vector(2, -24, 0), App.Vector(15, -24, 0)),
    Part.LineSegment(App.Vector(15, -24, 0), App.Vector(15, -17, 0)),
], False)
sketch15.addConstraint([
    Sketcher.Constraint("Coincident", 0, 2, 1, 1),
    Sketcher.Constraint("Coincident", 1, 2, 2, 1),
    Sketcher.Constraint("Coincident", 2, 2, 3, 1),
    Sketcher.Constraint("Coincident", 3, 2, 0, 1),
    Sketcher.Constraint("Horizontal", 0),
    Sketcher.Constraint("Vertical", 1),
    Sketcher.Constraint("Horizontal", 2),
    Sketcher.Constraint("Vertical", 3),
    Sketcher.Constraint("DistanceX", 0, 2, 0, 1, 13.0),
    Sketcher.Constraint("DistanceY", 1, 2, 1, 1, 6.8),
    Sketcher.Constraint("DistanceX", -1, 1, 0, 2, 2.0),
    Sketcher.Constraint("DistanceY", 0, 2, -1, 1, 17.360714),
])
sketch15.setExpression("Constraints[8]", "Params.sketch15_width")
sketch15.setExpression("Constraints[9]", "Params.sketch15_height")
pocket7 = doc.addObject("PartDesign::Pocket", "Pocket006")
body.addObject(pocket7)
pocket7.Profile = sketch15
pocket7.setExpression("Length", "Params.pocket7_length")

sketch16 = doc.addObject("Sketcher::SketchObject", "Sketch015")
body.addObject(sketch16)
sketch16.AttachmentSupport = (doc.YZ_Plane, [""])
sketch16.MapMode = "FlatFace"
sketch16.AttachmentOffset = App.Placement(App.Vector(0, 0, 2.807143), App.Rotation())
sketch16.addGeometry([
    Part.LineSegment(App.Vector(15, -11, 0), App.Vector(2, -11, 0)),
    Part.LineSegment(App.Vector(2, -11, 0), App.Vector(2, -14.4, 0)),
    Part.LineSegment(App.Vector(2, -14.4, 0), App.Vector(15, -14.4, 0)),
    Part.LineSegment(App.Vector(15, -14.4, 0), App.Vector(15, -11, 0)),
], False)
sketch16.addConstraint([
    Sketcher.Constraint("Coincident", 0, 2, 1, 1),
    Sketcher.Constraint("Coincident", 1, 2, 2, 1),
    Sketcher.Constraint("Coincident", 2, 2, 3, 1),
    Sketcher.Constraint("Coincident", 3, 2, 0, 1),
    Sketcher.Constraint("Horizontal", 0),
    Sketcher.Constraint("Vertical", 1),
    Sketcher.Constraint("Horizontal", 2),
    Sketcher.Constraint("Vertical", 3),
    Sketcher.Constraint("DistanceX", 0, 2, 0, 1, 13.0),
    Sketcher.Constraint("DistanceY", 1, 2, 1, 1, 3.4),
    Sketcher.Constraint("DistanceX", -1, 1, 0, 2, 2.0),
    Sketcher.Constraint("DistanceY", 0, 2, -1, 1, 10.960714),
])
sketch16.setExpression("Constraints[8]", "Params.sketch16_width")
sketch16.setExpression("Constraints[9]", "Params.sketch16_height")
pocket8 = doc.addObject("PartDesign::Pocket", "Pocket007")
body.addObject(pocket8)
pocket8.Profile = sketch16
pocket8.setExpression("Length", "Params.pocket8_length")

doc.recompute()
